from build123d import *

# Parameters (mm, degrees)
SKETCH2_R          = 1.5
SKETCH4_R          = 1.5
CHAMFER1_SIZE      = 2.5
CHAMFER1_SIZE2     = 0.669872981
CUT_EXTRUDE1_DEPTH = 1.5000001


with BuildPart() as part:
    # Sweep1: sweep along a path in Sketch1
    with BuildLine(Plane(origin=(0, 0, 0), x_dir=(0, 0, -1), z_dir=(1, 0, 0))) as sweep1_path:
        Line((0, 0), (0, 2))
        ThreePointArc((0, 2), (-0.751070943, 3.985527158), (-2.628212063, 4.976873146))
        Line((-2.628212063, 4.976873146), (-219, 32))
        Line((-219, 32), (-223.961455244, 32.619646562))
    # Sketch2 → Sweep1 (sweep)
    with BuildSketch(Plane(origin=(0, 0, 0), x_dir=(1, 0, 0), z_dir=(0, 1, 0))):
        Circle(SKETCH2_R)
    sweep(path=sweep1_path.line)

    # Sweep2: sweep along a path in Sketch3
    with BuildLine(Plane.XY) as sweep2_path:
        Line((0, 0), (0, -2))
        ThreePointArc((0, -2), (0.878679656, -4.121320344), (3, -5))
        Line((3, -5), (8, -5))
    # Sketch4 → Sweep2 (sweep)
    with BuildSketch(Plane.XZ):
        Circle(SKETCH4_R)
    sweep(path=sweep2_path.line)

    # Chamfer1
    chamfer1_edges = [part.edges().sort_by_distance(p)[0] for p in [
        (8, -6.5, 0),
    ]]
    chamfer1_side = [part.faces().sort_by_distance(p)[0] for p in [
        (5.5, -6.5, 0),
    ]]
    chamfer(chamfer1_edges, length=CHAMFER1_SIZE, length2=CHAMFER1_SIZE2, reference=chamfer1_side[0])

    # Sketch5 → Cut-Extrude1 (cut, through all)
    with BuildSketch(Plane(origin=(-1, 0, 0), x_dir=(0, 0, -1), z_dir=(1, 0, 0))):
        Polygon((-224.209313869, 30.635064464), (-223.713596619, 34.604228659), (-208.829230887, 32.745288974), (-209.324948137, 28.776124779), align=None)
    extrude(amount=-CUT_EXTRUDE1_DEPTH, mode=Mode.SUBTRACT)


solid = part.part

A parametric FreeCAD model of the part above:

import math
import FreeCAD as App
import Part
import Sketcher
Q = App.Units.Quantity


def edges_at(feature, points):
    """Names of the edges that pass closest to the given points."""
    edges = feature.Shape.Edges
    near = lambda p: min(range(len(edges)), key=lambda i: edges[i].distToShape(Part.Vertex(*p))[0])
    return sorted({f"Edge{near(p) + 1}" for p in points})


def add_polygon(sketch, points):
    """Adds a closed chain of lines whose ends are joined by coincident constraints."""
    first, n = sketch.GeometryCount, len(points)
    for a, b in zip(points, points[1:] + points[:1]):
        sketch.addGeometry(Part.LineSegment(App.Vector(*a, 0), App.Vector(*b, 0)), False)
    for i in range(n):
        sketch.addConstraint(Sketcher.Constraint("Coincident", first + i, 2, first + (i + 1) % n, 1))

doc = App.newDocument("Part")
body = doc.addObject("PartDesign::Body", "Body")

# Sketch on XZ plane
sketch1 = body.newObject("Sketcher::SketchObject", "Sketch")
sketch1.AttachmentSupport = (doc.getObject("XZ_Plane"), [""])
sketch1.MapMode = "FlatFace"
sketch1.addGeometry(Part.Circle(App.Vector(0, 0, 0), App.Vector(0, 0, 1), 1.5), False)
sketch1.addConstraint([
    Sketcher.Constraint("Coincident", 0, 3, -1, 1),
    Sketcher.Constraint("Diameter", 0, Q("3 mm")),
])

# Sketch on YZ plane
sketch2 = body.newObject("Sketcher::SketchObject", "Sketch001")
sketch2.AttachmentSupport = (doc.getObject("YZ_Plane"), [""])
sketch2.MapMode = "FlatFace"
sketch2.addGeometry([
    Part.LineSegment(App.Vector(0, 0, 0), App.Vector(2, 0, 0)),
    Part.ArcOfCircle(Part.Circle(App.Vector(2, 3, 0), App.Vector(0, 0, 1), 3), math.radians(-90), math.radians(-7.118929)),
    Part.LineSegment(App.Vector(4.976873, 2.628212, 0), App.Vector(32, 219, 0)),
    Part.LineSegment(App.Vector(32, 219, 0), App.Vector(32.619647, 223.961455, 0)),
], False)
sketch2.addConstraint([
    Sketcher.Constraint("Tangent", 0, 2, 1, 1),
    Sketcher.Constraint("Tangent", 1, 2, 2, 1),
    Sketcher.Constraint("Coincident", 2, 2, 3, 1),
    Sketcher.Constraint("Horizontal", 0),
    Sketcher.Constraint("Coincident", 0, 1, -1, 1),
    Sketcher.Constraint("Parallel", 2, 3),
    Sketcher.Constraint("Radius", 1, Q("3 mm")),
    Sketcher.Constraint("DistanceX", 0, 1, 0, 2, Q("2 mm")),
    Sketcher.Constraint("Distance", 3, Q("5 mm")),
    Sketcher.Constraint("DistanceX", -1, 1, 2, 2, Q("32 mm")),
    Sketcher.Constraint("DistanceY", -1, 1, 2, 2, Q("219 mm")),
])
doc.recompute()

additivepipe = body.newObject("PartDesign::AdditivePipe", "AdditivePipe")
additivepipe.Profile = sketch1
additivepipe.Spine = (sketch2, ["Edge1", "Edge2", "Edge3", "Edge4"])

# Sketch on XZ plane
sketch3 = body.newObject("Sketcher::SketchObject", "Sketch002")
sketch3.AttachmentSupport = (doc.getObject("XZ_Plane"), [""])
sketch3.MapMode = "FlatFace"
sketch3.addGeometry(Part.Circle(App.Vector(0, 0, 0), App.Vector(0, 0, 1), 1.5), False)
sketch3.addConstraint([
    Sketcher.Constraint("Coincident", 0, 3, -1, 1),
    Sketcher.Constraint("Diameter", 0, Q("3 mm")),
])

# Sketch on XY plane
sketch4 = body.newObject("Sketcher::SketchObject", "Sketch003")
sketch4.AttachmentSupport = (doc.getObject("XY_Plane"), [""])
sketch4.MapMode = "FlatFace"
sketch4.addGeometry([
    Part.LineSegment(App.Vector(0, 0, 0), App.Vector(0, -2, 0)),
    Part.ArcOfCircle(Part.Circle(App.Vector(3, -2, 0), App.Vector(0, 0, 1), 3), math.radians(180), math.radians(270)),
    Part.LineSegment(App.Vector(3, -5, 0), App.Vector(8, -5, 0)),
], False)
sketch4.addConstraint([
    Sketcher.Constraint("Tangent", 0, 2, 1, 1),
    Sketcher.Constraint("Tangent", 1, 2, 2, 1),
    Sketcher.Constraint("Vertical", 0),
    Sketcher.Constraint("Horizontal", 2),
    Sketcher.Constraint("Coincident", 0, 1, -1, 1),
    Sketcher.Constraint("Radius", 1, Q("3 mm")),
    Sketcher.Constraint("DistanceX", 2, 1, 2, 2, Q("5 mm")),
    Sketcher.Constraint("DistanceY", 0, 2, 0, 1, Q("2 mm")),
])
doc.recompute()

additivepipe2 = body.newObject("PartDesign::AdditivePipe", "AdditivePipe001")
additivepipe2.Profile = sketch3
additivepipe2.Spine = (sketch4, ["Edge1", "Edge2", "Edge3"])
doc.recompute()

chamfer = body.newObject("PartDesign::Chamfer", "Chamfer")
chamfer.Base = (additivepipe2, edges_at(additivepipe2, [(8, -6.5, 0)]))
chamfer.ChamferType = "Two distances"
chamfer.Size = 2.5
chamfer.Size2 = 0.669873

# Sketch on YZ plane
sketch5 = body.newObject("Sketcher::SketchObject", "Sketch004")
sketch5.AttachmentSupport = (doc.getObject("YZ_Plane"), [""])
sketch5.MapMode = "FlatFace"
sketch5.AttachmentOffset = App.Placement(App.Vector(0, 0, -1), App.Rotation())
add_polygon(sketch5, [(34.604229, 223.713597), (30.635064, 224.209314), (28.776125, 209.324948), (32.745289, 208.829231)])  # lines 0-3
sketch5.addConstraint([
    Sketcher.Constraint("Perpendicular", 0, 1),
    Sketcher.Constraint("Perpendicular", 1, 2),
    Sketcher.Constraint("Perpendicular", 2, 3),
    Sketcher.Constraint("Distance", 0, Q("4 mm")),
    Sketcher.Constraint("Distance", 1, Q("15 mm")),
    Sketcher.Constraint("DistanceY", -1, 1, 1, 2, Q("209.324948 mm")),
    Sketcher.Constraint("DistanceX", -1, 1, 2, 2, Q("32.745289 mm")),
    Sketcher.Constraint("DistanceY", -1, 1, 2, 2, Q("208.829231 mm")),
])
pocket1 = body.newObject("PartDesign::Pocket", "Pocket")
pocket1.Profile = sketch5
pocket1.Type = "ThroughAll"

doc.recompute()
